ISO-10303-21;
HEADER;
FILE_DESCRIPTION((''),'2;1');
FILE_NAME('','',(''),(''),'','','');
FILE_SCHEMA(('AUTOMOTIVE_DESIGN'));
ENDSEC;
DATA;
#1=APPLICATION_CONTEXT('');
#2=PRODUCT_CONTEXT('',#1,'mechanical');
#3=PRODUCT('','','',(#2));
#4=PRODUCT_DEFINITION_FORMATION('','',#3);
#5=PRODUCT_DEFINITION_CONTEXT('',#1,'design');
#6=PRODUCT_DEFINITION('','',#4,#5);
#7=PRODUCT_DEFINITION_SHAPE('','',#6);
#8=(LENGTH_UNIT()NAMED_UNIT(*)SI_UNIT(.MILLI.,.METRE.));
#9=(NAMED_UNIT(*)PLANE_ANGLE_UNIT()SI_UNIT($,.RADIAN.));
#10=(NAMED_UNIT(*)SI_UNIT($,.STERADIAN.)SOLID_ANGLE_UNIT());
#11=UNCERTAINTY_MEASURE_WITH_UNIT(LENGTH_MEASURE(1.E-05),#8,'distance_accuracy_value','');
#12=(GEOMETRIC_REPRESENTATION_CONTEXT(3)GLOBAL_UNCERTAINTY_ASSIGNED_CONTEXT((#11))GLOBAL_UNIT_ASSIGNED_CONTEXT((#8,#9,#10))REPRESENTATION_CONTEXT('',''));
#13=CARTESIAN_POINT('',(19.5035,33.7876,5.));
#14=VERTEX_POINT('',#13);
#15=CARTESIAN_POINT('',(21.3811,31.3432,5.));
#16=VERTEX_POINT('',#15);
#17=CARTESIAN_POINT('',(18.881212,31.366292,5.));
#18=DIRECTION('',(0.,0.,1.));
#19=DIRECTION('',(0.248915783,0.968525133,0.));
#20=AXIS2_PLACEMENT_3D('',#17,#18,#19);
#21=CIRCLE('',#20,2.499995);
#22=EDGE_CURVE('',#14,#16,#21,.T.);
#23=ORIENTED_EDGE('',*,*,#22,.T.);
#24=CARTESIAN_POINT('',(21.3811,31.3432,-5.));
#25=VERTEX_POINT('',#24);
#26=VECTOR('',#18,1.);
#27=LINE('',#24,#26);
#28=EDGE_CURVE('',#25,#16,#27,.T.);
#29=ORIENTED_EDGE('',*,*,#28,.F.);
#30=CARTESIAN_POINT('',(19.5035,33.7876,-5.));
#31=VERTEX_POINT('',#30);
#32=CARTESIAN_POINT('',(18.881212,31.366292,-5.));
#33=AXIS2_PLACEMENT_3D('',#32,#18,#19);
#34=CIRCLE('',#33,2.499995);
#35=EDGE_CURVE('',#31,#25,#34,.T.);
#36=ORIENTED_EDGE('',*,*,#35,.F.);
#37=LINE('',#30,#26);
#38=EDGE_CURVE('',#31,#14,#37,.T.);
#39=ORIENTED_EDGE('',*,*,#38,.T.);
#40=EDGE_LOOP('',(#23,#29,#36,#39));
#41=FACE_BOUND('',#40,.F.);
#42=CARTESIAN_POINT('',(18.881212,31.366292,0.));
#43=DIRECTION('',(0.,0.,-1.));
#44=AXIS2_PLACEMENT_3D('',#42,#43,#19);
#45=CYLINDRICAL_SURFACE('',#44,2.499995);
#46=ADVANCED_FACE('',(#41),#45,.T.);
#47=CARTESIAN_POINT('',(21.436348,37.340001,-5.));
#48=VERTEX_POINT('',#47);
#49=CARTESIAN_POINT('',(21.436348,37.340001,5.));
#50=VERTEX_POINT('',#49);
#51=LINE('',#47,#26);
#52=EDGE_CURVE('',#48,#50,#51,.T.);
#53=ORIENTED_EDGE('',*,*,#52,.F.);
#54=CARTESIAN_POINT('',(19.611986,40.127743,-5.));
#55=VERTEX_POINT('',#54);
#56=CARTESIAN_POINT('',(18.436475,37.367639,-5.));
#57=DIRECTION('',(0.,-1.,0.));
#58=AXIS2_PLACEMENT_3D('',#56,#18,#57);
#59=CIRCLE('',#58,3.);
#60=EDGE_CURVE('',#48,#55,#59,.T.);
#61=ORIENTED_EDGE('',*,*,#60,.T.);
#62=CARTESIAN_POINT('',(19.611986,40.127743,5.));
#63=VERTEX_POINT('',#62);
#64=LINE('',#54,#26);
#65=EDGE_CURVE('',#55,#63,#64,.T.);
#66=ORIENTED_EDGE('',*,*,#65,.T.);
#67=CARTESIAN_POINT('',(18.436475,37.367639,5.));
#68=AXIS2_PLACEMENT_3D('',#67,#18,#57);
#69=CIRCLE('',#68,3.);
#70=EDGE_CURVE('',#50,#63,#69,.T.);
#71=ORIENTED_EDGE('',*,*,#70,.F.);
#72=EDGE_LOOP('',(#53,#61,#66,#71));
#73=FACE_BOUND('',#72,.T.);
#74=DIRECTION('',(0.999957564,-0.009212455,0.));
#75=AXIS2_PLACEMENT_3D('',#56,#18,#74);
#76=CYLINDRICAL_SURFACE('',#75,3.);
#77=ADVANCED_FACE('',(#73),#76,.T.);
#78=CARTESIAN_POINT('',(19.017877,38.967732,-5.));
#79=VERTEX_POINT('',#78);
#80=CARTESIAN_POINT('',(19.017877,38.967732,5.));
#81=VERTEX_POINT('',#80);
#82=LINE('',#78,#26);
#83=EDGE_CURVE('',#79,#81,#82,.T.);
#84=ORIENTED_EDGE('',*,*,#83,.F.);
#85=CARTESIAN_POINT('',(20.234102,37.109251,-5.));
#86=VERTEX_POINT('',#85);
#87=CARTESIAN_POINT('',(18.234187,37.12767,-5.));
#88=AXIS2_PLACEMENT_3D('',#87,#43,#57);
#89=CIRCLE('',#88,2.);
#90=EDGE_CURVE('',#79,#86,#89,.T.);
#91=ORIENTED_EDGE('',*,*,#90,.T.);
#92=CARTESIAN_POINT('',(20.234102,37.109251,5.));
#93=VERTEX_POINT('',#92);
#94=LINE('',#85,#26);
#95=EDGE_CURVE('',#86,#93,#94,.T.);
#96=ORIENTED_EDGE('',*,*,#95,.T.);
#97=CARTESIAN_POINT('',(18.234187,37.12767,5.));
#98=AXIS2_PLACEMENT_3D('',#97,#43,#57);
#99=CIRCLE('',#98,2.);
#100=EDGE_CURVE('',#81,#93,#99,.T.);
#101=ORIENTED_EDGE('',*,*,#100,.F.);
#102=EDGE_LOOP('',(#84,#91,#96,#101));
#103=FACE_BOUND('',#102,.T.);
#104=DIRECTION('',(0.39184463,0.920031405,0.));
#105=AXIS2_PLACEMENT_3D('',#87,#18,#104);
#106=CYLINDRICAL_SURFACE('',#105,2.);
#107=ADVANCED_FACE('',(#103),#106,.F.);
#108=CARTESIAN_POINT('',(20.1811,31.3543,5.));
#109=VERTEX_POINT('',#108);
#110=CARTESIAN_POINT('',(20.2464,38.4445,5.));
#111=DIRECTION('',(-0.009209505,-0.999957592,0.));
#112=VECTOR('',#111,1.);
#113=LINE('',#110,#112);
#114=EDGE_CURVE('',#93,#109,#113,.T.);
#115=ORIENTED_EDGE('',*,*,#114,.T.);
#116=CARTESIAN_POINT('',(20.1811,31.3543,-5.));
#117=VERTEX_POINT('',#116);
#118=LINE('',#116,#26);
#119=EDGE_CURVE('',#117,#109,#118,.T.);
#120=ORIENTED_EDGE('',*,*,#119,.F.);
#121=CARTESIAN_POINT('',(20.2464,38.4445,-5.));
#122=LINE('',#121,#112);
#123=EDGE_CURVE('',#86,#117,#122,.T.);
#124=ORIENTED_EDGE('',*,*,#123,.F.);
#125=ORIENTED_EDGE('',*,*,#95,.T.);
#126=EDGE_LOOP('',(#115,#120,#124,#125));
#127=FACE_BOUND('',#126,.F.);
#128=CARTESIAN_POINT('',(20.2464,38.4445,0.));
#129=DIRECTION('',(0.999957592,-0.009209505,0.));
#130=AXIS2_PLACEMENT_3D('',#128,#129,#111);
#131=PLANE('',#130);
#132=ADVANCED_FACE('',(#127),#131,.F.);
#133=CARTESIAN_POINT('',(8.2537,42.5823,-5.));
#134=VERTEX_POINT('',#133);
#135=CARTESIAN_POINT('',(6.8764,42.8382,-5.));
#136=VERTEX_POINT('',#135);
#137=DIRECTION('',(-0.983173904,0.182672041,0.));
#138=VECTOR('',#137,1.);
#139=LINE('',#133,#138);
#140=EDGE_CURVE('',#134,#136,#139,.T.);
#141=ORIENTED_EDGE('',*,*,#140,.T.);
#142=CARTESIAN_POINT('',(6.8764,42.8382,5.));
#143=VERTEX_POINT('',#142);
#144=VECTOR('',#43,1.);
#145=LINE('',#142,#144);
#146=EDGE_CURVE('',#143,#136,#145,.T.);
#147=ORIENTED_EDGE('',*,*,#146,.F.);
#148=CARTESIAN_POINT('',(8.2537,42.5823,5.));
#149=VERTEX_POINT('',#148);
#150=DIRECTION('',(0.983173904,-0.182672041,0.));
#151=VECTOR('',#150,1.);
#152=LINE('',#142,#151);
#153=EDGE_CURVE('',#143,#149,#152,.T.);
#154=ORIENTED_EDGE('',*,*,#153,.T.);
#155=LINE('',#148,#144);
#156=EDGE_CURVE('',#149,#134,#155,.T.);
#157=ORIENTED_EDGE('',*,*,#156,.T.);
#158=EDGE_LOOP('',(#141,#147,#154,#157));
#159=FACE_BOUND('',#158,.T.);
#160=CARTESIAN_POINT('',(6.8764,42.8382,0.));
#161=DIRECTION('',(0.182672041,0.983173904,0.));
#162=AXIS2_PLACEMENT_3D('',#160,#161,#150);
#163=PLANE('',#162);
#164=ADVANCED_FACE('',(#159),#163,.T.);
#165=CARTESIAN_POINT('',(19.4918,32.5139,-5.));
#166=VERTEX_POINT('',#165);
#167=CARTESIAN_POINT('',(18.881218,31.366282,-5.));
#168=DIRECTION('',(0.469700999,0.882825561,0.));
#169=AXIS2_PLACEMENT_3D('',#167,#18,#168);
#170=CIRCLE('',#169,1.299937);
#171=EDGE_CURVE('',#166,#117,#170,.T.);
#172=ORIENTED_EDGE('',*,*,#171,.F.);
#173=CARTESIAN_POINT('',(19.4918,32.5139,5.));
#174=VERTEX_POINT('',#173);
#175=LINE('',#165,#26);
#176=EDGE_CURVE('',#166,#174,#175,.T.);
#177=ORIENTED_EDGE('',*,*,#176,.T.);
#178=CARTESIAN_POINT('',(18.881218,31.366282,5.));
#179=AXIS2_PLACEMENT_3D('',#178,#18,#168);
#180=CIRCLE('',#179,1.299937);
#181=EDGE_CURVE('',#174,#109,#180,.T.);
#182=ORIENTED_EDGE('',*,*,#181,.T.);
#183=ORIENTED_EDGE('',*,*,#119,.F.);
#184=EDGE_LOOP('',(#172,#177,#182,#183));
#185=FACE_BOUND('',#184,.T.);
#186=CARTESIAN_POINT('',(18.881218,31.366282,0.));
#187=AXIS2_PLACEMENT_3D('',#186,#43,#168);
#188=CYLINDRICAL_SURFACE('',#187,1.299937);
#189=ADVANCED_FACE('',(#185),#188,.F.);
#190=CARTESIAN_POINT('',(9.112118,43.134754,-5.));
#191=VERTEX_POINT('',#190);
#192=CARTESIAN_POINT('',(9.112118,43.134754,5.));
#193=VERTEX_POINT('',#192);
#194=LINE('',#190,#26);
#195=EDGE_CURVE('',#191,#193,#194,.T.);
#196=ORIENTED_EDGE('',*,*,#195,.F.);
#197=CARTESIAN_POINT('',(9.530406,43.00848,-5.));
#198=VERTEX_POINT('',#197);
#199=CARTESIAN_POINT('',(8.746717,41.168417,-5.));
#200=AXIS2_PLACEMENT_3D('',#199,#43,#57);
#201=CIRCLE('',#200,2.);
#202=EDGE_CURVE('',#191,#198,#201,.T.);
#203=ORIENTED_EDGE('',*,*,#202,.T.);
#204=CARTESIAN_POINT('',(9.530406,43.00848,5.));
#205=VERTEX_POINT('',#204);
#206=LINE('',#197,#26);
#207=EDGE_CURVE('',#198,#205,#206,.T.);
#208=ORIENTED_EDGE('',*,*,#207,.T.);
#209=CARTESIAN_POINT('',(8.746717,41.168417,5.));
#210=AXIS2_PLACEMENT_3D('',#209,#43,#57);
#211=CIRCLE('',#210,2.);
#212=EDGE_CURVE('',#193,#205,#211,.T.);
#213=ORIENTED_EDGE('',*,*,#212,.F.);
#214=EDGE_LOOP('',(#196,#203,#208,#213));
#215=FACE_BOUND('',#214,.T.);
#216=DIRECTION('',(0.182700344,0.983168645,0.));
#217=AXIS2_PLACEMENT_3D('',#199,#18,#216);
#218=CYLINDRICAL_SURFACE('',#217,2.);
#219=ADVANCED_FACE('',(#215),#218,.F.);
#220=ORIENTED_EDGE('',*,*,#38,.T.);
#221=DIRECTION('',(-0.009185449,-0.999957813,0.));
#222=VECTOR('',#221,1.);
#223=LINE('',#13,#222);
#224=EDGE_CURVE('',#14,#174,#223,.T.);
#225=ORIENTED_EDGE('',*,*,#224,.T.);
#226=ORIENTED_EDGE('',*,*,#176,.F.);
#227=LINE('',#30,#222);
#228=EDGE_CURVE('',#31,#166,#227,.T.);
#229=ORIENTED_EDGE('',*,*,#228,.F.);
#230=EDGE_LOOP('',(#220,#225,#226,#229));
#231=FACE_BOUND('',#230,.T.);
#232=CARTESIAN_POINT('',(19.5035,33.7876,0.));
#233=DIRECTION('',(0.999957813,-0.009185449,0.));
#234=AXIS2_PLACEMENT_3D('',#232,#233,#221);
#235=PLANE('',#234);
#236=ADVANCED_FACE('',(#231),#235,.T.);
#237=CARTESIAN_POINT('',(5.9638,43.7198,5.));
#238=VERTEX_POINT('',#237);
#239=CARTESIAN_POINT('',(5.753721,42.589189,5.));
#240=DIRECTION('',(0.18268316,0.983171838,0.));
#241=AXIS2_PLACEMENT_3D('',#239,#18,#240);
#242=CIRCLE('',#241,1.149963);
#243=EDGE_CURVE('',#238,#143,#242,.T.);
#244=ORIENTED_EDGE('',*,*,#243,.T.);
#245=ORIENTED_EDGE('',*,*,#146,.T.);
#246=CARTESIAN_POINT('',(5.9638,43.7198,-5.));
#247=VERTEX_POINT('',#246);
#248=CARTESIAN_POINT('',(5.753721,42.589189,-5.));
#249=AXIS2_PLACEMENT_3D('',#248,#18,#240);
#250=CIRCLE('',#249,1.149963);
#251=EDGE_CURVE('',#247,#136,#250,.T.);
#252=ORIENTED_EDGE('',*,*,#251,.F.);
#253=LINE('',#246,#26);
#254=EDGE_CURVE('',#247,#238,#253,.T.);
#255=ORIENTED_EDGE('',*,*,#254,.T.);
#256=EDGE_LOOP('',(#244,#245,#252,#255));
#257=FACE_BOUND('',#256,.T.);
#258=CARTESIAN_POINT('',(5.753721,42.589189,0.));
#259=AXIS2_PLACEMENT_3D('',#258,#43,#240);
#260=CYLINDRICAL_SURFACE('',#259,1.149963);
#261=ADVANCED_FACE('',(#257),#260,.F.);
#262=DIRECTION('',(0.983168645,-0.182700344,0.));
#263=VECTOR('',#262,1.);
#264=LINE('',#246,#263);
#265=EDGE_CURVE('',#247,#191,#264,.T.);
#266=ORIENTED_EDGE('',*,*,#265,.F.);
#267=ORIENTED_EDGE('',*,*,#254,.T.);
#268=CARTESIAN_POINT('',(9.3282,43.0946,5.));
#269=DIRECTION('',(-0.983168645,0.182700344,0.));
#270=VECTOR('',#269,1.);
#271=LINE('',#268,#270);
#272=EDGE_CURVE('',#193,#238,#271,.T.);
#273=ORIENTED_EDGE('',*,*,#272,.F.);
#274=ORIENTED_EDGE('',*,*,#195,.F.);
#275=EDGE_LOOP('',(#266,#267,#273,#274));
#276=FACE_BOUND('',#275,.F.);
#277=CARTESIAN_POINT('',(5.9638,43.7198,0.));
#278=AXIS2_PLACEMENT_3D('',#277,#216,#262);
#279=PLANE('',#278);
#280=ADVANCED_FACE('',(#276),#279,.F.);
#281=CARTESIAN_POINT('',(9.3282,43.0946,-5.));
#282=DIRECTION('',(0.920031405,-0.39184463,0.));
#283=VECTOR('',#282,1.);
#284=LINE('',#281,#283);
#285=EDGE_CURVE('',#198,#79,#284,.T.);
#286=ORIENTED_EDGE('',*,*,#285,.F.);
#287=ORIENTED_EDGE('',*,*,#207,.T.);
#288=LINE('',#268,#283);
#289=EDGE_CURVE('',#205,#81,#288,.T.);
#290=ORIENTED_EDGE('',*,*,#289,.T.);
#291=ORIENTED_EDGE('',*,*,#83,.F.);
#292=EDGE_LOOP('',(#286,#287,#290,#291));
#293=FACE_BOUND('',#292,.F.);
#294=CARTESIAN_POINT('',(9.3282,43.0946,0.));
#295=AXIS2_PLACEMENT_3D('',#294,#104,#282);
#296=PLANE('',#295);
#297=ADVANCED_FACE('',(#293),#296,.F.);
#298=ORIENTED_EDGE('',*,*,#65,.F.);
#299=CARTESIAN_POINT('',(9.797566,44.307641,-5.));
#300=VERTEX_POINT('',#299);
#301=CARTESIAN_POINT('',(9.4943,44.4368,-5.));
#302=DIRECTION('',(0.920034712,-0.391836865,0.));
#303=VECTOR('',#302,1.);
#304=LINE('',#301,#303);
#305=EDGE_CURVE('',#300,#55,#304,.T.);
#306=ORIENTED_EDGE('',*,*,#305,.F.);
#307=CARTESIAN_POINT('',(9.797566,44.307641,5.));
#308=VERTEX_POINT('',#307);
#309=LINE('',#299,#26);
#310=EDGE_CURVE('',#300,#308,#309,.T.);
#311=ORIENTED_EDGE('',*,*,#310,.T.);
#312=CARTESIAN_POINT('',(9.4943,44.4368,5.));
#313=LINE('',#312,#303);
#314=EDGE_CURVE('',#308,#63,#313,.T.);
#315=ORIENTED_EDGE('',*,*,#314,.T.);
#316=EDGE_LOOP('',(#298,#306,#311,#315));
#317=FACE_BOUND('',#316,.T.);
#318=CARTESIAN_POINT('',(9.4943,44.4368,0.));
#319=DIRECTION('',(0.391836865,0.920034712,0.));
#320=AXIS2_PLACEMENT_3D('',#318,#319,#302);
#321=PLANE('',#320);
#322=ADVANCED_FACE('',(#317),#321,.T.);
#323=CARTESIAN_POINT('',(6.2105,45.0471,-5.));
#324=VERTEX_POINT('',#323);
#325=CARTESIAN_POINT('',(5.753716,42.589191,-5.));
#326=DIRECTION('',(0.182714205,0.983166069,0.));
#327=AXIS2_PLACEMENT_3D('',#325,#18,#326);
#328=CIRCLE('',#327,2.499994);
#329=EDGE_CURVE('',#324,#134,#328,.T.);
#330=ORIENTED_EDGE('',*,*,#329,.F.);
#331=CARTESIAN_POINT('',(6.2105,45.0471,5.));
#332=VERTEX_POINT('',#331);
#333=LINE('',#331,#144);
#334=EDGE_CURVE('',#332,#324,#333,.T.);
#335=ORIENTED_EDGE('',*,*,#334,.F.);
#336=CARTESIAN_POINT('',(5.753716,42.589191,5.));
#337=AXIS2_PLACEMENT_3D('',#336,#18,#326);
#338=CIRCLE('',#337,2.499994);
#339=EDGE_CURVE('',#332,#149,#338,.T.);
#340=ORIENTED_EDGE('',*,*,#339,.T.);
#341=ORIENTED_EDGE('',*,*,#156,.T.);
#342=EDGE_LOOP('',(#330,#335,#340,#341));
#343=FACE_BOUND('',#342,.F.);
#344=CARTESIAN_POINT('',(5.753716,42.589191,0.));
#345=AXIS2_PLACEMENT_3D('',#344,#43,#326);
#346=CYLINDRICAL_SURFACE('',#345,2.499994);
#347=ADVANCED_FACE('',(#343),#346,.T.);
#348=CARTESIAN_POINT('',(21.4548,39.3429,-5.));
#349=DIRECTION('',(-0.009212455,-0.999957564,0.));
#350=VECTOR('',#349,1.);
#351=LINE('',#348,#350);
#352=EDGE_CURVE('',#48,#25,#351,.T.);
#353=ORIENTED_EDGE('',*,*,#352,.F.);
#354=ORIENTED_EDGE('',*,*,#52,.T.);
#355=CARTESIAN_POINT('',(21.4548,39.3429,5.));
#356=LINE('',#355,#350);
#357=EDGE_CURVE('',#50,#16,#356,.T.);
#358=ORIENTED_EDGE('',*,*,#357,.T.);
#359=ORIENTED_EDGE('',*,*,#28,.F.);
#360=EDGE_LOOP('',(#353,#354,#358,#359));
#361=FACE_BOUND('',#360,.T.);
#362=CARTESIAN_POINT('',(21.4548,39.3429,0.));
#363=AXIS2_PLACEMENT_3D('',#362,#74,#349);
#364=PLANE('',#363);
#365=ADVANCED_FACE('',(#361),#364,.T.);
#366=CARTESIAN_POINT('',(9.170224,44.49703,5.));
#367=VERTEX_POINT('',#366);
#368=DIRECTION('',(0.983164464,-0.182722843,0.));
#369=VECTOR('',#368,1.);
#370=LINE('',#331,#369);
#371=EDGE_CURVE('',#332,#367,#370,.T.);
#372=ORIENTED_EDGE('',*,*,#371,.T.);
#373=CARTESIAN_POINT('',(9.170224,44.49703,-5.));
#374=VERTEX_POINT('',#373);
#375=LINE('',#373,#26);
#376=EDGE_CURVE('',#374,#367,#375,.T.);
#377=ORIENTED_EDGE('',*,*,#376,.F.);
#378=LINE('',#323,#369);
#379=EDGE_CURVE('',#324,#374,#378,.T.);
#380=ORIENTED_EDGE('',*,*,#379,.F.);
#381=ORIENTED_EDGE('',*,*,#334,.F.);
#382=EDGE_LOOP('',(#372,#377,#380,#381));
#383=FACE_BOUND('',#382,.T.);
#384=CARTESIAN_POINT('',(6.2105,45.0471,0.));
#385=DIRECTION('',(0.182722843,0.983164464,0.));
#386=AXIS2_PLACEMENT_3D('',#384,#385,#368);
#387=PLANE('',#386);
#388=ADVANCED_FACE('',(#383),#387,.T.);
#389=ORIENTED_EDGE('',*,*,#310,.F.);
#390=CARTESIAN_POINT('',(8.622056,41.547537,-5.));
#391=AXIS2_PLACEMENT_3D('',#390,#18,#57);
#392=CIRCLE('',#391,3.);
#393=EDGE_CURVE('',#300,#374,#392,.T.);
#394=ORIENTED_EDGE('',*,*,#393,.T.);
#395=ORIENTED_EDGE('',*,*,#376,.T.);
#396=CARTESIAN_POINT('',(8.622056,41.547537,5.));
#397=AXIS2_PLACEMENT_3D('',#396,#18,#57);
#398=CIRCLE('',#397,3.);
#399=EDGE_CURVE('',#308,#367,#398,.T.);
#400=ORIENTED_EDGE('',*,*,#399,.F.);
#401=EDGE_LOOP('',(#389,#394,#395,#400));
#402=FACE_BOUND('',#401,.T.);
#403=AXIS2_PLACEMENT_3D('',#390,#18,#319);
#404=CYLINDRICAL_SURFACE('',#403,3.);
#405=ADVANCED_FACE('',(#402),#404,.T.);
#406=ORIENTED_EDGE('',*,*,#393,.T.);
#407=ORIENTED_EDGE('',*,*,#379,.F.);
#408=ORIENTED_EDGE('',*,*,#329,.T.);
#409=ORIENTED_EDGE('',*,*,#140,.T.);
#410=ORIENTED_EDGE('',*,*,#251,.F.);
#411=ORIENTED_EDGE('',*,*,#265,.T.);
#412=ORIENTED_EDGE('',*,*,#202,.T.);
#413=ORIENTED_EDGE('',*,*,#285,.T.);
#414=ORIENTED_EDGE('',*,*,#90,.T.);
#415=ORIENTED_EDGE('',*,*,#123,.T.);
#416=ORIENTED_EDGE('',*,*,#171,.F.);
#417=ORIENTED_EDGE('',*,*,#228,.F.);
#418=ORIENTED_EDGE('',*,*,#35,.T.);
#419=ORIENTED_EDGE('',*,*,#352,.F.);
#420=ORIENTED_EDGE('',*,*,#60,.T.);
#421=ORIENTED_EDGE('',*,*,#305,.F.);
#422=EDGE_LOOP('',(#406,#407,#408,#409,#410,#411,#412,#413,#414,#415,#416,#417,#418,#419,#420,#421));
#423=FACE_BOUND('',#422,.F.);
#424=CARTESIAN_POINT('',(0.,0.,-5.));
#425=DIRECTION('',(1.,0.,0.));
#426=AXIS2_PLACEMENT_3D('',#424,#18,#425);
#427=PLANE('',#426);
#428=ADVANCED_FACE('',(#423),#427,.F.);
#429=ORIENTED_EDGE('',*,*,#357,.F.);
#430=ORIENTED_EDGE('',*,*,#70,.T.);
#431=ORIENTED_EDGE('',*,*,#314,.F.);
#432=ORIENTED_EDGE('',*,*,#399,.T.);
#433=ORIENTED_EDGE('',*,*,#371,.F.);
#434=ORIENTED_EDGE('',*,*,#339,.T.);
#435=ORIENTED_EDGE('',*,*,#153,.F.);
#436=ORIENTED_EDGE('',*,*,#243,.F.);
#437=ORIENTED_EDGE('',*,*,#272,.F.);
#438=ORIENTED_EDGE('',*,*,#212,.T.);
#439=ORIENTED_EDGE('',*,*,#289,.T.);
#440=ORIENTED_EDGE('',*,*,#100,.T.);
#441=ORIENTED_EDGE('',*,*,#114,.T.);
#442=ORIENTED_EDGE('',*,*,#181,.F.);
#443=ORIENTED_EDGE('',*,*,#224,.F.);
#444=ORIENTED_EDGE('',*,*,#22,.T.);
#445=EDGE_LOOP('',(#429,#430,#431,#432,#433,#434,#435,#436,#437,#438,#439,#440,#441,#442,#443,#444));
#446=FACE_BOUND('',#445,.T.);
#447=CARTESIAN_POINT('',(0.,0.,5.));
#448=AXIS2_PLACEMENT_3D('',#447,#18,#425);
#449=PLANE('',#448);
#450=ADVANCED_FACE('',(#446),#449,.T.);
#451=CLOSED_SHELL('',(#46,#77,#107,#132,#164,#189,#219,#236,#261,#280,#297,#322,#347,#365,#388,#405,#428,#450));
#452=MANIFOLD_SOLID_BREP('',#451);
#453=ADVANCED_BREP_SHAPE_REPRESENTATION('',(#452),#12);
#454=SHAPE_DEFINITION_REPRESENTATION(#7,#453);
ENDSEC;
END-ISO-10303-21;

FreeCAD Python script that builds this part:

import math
import FreeCAD as App
import Part
import Sketcher
Q = App.Units.Quantity


def edges_at(feature, points):
    """Names of the edges that pass closest to the given points."""
    edges = feature.Shape.Edges
    near = lambda p: min(range(len(edges)), key=lambda i: edges[i].distToShape(Part.Vertex(*p))[0])
    return sorted({f"Edge{near(p) + 1}" for p in points})

doc = App.newDocument("Part")
params = doc.addObject("Spreadsheet::Sheet", "Params")
for row, (alias, value) in enumerate([
    ("sketch1_radius", "1.3 mm"),
    ("sketch1_radius2", "2.5 mm"),
    ("sketch1_radius3", "1.15 mm"),
    ("sketch1_length", "8 mm"),
    ("sketch1_length2", "13 mm"),
    ("pad1_length", "10 mm"),
    ("fillet_radius", "2 mm"),
    ("fillet2_radius", "3 mm"),
], start=1):
    params.set(f"A{row}", alias)
    params.set(f"B{row}", "=" + value)
    params.setAlias(f"B{row}", alias)

body = doc.addObject("PartDesign::Body", "Body")

# Sketch on XY plane
sketch1 = body.newObject("Sketcher::SketchObject", "Sketch")
sketch1.AttachmentSupport = (doc.getObject("XY_Plane"), [""])
sketch1.MapMode = "FlatFace"
sketch1.addGeometry([
    Part.ArcOfCircle(Part.Circle(App.Vector(5.8, 42.6, 0), App.Vector(0, 0, 1), 1.1), math.radians(79), math.radians(373)),  # 0
    Part.LineSegment(App.Vector(6, 43.7, 0), App.Vector(9.3, 43.1, 0)),  # 1
    Part.LineSegment(App.Vector(9.3, 43.1, 0), App.Vector(20.2, 38.4, 0)),  # 2
    Part.LineSegment(App.Vector(20.2, 38.4, 0), App.Vector(20.2, 31.4, 0)),  # 3
    Part.ArcOfCircle(Part.Circle(App.Vector(18.9, 31.4, 0), App.Vector(0, 0, 1), 1.3), math.radians(62), math.radians(359)),  # 4
    Part.LineSegment(App.Vector(19.5, 32.5, 0), App.Vector(19.5, 33.8, 0)),  # 5
    Part.ArcOfCircle(Part.Circle(App.Vector(18.9, 31.4, 0), App.Vector(0, 0, 1), 2.5), math.radians(76), math.radians(359)),  # 6
    Part.LineSegment(App.Vector(21.4, 31.3, 0), App.Vector(21.5, 39.3, 0)),  # 7
    Part.LineSegment(App.Vector(21.5, 39.3, 0), App.Vector(9.5, 44.4, 0)),  # 8
    Part.LineSegment(App.Vector(9.5, 44.4, 0), App.Vector(6.2, 45, 0)),  # 9
    Part.ArcOfCircle(Part.Circle(App.Vector(5.8, 42.6, 0), App.Vector(0, 0, 1), 2.5), math.radians(79), math.radians(360)),  # 10
    Part.LineSegment(App.Vector(8.3, 42.6, 0), App.Vector(6.9, 42.8, 0)),  # 11
], False)
sketch1.addConstraint([
    Sketcher.Constraint("Tangent", 0, 1, 1, 1),
    Sketcher.Constraint("Coincident", 1, 2, 2, 1),
    Sketcher.Constraint("Coincident", 2, 2, 3, 1),
    Sketcher.Constraint("Tangent", 3, 2, 4, 2),
    Sketcher.Constraint("Coincident", 4, 1, 5, 1),
    Sketcher.Constraint("Coincident", 5, 2, 6, 1),
    Sketcher.Constraint("Tangent", 6, 2, 7, 1),
    Sketcher.Constraint("Coincident", 7, 2, 8, 1),
    Sketcher.Constraint("Coincident", 8, 2, 9, 1),
    Sketcher.Constraint("Tangent", 9, 2, 10, 1),
    Sketcher.Constraint("Coincident", 10, 2, 11, 1),
    Sketcher.Constraint("Coincident", 11, 2, 0, 2),
    Sketcher.Constraint("Coincident", 6, 3, 4, 3),
    Sketcher.Constraint("Coincident", 10, 3, 0, 3),
    Sketcher.Constraint("Equal", 6, 10),
    Sketcher.Constraint("Parallel", 3, 5),
    Sketcher.Constraint("Parallel", 5, 7),
    Sketcher.Constraint("Parallel", 2, 8),
    Sketcher.Constraint("Parallel", 1, 9),
    Sketcher.Constraint("Parallel", 9, 11),
    Sketcher.Constraint("Radius", 4, 1.3),
    Sketcher.Constraint("Radius", 6, 2.5),
    Sketcher.Constraint("Radius", 0, 1.15),
    Sketcher.Constraint("Distance", 7, 8.0),
    Sketcher.Constraint("Distance", 8, 13.0),
    Sketcher.Constraint("Angle", 2, Q("-23.0693 deg")),
    Sketcher.Constraint("Distance", 9, 3.34),
    Sketcher.Constraint("DistanceX", 0, 3, 0, 1, 0.21),
    Sketcher.Constraint("DistanceY", 2, 2, 1, 2, 4.65),
    Sketcher.Constraint("Distance", 1, 3.422),
    Sketcher.Constraint("DistanceX", -1, 1, 3, 2, 20.181),
    Sketcher.Constraint("DistanceY", -1, 1, 4, 1, 32.514),
    Sketcher.Constraint("DistanceY", -1, 1, 7, 2, 39.343),
    Sketcher.Constraint("DistanceY", 10, 2, 0, 3, 0.007),
])
sketch1.setExpression("Constraints[20]", "Params.sketch1_radius")
sketch1.setExpression("Constraints[21]", "Params.sketch1_radius2")
sketch1.setExpression("Constraints[22]", "Params.sketch1_radius3")
sketch1.setExpression("Constraints[23]", "Params.sketch1_length")
sketch1.setExpression("Constraints[24]", "Params.sketch1_length2")
pad1 = body.newObject("PartDesign::Pad", "Pad")
pad1.Profile = sketch1
pad1.setExpression("Length", "Params.pad1_length")
pad1.Midplane = True
doc.recompute()

fillet = body.newObject("PartDesign::Fillet", "Fillet")
fillet.Base = (pad1, edges_at(pad1, [(20.246, 38.444, 0), (9.328, 43.095, 0)]))
fillet.setExpression("Radius", "Params.fillet_radius")
doc.recompute()

fillet2 = body.newObject("PartDesign::Fillet", "Fillet001")
fillet2.Base = (fillet, edges_at(fillet, [(9.494, 44.437, 0), (21.455, 39.343, 0)]))
fillet2.setExpression("Radius", "Params.fillet2_radius")

doc.recompute()
